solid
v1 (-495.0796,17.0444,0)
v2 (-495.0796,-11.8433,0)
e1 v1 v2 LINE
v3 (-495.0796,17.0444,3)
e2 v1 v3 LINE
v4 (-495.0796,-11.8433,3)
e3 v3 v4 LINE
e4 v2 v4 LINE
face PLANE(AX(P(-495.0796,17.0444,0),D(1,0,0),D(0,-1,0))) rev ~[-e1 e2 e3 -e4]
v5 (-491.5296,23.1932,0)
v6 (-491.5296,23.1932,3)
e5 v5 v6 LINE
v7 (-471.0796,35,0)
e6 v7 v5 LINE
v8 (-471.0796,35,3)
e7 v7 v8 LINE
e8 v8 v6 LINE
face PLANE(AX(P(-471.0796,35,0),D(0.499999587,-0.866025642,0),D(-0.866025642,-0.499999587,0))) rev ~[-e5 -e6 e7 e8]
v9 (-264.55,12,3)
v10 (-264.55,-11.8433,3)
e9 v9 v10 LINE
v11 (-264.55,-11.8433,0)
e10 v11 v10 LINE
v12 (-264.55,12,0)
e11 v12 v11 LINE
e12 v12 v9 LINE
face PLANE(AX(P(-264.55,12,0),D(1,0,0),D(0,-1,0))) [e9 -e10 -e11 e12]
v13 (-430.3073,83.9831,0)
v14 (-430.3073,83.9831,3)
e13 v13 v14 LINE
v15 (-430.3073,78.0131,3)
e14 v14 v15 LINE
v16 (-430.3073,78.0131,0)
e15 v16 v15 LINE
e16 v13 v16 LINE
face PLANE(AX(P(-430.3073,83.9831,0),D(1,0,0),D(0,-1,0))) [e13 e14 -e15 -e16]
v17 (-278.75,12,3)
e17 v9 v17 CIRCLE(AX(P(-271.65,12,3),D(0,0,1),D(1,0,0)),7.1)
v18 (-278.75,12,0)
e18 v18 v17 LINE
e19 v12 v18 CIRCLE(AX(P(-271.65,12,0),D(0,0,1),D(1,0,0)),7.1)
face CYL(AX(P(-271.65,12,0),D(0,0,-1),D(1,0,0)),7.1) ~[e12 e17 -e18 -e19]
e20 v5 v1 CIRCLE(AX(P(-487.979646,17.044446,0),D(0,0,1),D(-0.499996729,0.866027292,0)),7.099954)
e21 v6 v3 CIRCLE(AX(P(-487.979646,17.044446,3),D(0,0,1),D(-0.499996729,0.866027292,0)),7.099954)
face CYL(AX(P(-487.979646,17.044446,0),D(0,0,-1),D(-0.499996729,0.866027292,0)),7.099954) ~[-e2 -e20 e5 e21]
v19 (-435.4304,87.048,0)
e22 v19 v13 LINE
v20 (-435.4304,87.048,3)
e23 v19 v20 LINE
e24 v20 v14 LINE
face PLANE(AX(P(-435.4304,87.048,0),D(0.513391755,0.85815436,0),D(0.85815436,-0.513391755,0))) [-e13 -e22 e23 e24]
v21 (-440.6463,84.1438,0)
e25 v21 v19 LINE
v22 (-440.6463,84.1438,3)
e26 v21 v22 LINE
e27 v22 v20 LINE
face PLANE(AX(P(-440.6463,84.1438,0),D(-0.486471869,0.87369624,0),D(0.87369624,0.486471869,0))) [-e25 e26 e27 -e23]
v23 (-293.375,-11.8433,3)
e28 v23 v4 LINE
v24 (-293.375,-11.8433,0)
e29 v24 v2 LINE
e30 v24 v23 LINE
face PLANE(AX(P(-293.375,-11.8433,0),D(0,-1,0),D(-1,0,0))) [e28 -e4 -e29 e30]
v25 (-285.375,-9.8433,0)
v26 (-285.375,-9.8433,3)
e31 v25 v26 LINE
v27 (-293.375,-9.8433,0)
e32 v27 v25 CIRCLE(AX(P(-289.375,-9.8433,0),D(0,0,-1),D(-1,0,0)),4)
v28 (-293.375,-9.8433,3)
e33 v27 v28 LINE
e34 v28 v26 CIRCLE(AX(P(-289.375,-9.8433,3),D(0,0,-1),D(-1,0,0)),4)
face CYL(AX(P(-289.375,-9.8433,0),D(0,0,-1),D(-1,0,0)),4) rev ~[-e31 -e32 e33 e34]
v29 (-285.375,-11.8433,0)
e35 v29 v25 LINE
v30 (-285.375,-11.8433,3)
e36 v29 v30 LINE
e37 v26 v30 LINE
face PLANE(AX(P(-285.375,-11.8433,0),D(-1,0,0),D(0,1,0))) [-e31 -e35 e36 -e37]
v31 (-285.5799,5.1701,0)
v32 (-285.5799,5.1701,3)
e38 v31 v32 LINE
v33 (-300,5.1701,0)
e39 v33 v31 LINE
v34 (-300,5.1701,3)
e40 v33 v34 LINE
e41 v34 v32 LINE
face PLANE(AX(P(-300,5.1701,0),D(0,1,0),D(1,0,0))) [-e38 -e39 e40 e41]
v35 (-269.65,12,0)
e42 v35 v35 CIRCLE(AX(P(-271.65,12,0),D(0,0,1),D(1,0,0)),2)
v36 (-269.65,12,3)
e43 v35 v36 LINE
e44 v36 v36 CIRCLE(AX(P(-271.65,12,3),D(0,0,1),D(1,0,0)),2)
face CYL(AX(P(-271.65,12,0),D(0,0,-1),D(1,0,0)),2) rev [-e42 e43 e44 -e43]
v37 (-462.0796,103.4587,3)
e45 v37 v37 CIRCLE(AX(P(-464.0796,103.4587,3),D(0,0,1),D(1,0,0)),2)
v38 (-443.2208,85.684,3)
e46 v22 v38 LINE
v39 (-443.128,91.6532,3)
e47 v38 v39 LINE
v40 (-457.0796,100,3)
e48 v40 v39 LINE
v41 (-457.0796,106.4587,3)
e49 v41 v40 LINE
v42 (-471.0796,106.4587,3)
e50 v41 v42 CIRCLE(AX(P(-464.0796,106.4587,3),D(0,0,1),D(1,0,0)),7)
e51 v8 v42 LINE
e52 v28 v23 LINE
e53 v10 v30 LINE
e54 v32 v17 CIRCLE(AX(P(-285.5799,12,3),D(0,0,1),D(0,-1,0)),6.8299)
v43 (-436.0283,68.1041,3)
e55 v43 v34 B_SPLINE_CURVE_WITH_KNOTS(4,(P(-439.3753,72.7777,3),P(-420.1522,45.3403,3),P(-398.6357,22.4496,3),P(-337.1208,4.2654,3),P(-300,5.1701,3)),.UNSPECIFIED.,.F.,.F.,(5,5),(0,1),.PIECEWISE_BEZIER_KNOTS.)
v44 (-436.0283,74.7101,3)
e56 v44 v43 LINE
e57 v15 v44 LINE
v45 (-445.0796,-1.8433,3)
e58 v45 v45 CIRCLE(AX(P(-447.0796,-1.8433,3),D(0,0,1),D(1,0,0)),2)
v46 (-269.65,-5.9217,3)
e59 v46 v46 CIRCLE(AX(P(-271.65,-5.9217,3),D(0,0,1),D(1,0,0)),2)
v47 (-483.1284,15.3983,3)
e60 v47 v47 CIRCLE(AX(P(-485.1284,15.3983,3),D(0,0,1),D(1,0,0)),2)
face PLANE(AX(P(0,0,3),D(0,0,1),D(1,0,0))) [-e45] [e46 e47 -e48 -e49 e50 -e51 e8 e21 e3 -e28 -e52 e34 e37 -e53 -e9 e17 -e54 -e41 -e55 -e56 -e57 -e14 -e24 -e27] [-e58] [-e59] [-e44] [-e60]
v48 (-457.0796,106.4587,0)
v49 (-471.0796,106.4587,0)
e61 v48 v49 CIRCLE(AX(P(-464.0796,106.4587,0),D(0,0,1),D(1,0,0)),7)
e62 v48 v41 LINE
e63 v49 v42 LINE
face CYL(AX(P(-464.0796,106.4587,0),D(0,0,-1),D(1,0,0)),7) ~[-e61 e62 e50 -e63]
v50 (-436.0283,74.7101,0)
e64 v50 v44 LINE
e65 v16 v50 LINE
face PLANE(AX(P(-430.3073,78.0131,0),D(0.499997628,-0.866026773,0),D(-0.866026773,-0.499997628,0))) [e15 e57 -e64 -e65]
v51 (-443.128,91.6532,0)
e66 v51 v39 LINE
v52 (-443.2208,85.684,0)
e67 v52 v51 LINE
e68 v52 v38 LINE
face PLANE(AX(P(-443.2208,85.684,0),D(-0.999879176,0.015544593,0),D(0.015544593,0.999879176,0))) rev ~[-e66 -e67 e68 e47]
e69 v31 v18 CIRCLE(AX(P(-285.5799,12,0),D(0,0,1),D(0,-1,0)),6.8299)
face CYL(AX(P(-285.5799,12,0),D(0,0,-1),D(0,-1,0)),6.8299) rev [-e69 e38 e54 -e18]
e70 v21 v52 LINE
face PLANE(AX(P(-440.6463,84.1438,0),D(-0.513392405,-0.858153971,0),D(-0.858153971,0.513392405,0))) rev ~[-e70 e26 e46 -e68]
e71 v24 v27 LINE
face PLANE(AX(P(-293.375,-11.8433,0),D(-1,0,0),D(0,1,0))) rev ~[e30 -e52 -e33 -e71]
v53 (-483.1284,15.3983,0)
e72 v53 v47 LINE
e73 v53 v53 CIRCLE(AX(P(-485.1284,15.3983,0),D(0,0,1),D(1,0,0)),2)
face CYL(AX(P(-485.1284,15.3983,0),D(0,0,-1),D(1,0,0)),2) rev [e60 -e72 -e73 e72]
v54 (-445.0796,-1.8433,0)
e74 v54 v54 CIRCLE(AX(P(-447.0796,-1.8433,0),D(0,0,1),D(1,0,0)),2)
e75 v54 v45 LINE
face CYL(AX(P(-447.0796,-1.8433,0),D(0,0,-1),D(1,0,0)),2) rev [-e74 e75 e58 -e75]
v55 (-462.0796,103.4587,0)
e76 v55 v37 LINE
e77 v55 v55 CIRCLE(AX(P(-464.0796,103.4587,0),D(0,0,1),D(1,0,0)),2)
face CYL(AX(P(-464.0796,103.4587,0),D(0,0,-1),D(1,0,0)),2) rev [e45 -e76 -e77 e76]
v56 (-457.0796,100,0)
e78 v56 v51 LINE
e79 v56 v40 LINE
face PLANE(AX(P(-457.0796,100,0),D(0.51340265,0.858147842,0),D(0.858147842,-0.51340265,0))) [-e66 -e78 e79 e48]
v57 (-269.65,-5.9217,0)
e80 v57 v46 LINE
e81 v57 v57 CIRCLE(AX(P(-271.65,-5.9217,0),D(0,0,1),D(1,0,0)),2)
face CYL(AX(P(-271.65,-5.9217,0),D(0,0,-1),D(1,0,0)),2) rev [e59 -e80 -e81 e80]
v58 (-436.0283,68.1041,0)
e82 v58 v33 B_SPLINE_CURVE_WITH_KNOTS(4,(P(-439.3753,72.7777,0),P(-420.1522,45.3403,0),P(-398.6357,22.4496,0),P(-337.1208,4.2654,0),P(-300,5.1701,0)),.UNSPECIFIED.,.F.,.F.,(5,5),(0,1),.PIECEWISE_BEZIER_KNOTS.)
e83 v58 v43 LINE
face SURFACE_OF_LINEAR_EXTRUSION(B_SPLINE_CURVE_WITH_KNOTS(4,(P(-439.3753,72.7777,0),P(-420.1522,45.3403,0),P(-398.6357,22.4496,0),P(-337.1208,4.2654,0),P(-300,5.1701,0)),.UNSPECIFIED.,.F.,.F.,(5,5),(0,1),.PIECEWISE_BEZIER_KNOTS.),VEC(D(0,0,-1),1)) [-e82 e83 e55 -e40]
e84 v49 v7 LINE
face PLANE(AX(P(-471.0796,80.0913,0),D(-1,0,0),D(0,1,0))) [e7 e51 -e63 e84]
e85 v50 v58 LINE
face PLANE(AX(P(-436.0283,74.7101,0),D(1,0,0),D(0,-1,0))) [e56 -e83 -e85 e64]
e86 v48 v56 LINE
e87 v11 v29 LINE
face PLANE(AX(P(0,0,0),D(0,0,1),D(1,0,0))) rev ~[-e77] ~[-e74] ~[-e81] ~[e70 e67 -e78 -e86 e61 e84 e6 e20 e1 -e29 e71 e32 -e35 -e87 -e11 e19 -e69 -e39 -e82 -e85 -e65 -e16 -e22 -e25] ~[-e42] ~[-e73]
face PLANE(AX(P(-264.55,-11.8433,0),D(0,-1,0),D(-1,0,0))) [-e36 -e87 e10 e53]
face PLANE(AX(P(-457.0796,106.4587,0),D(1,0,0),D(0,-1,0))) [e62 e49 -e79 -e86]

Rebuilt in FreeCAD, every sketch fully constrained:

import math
import FreeCAD as App
import Part
import Sketcher

V = App.Vector
Q = App.Units.Quantity

doc = App.newDocument("Part")
body = doc.addObject("PartDesign::Body", "Body")

# Sketch on XY plane
sketch1 = body.newObject("Sketcher::SketchObject", "Sketch")
sketch1.AttachmentSupport = (doc.getObject("XY_Plane"), [""])
sketch1.MapMode = "FlatFace"
sketch1.addGeometry([
    Part.LineSegment(V(-471.0796, 106.4587, 0), V(-471.0796, 35, 0)),  # 0
    Part.LineSegment(V(-471.0796, 35, 0), V(-491.5296, 23.1932, 0)),  # 1
    Part.ArcOfCircle(Part.Circle(V(-487.9796, 17.0444, 0), V(0, 0, 1), 7.100017), math.radians(119.999921), math.radians(180)),  # 2
    Part.LineSegment(V(-495.0796, 17.0444, 0), V(-495.0796, -11.8433, 0)),  # 3
    Part.LineSegment(V(-495.0796, -11.8433, 0), V(-264.55, -11.8433, 0)),  # 4
    Part.LineSegment(V(-264.55, -11.8433, 0), V(-264.55, 12, 0)),  # 5
    Part.ArcOfCircle(Part.Circle(V(-271.65, 12, 0), V(0, 0, 1), 7.1), math.radians(0), math.radians(180)),  # 6
    Part.ArcOfCircle(Part.Circle(V(-285.5799, 12, 0), V(0, 0, 1), 6.8299), math.radians(-90), math.radians(0)),  # 7
    Part.LineSegment(V(-285.5799, 5.1701, 0), V(-300, 5.1701, 0)),  # 8
    Part.BSplineCurve([V(-436.028259, 68.10413, 0), V(-417.156436, 42.41159, 0), V(-393.385031, 20.919477, 0), V(-335.52292, 4.304343, 0), V(-300, 5.1701, 0)], [5, 5], [0.043045418, 1], False, 4, [1, 1, 1, 1, 1], False),  # 9
    Part.LineSegment(V(-436.0283, 68.1041, 0), V(-436.0283, 74.7101, 0)),  # 10
    Part.LineSegment(V(-436.0283, 74.7101, 0), V(-430.3073, 78.0131, 0)),  # 11
    Part.LineSegment(V(-430.3073, 78.0131, 0), V(-430.3073, 83.9831, 0)),  # 12
    Part.LineSegment(V(-430.3073, 83.9831, 0), V(-435.4304, 87.048, 0)),  # 13
    Part.LineSegment(V(-435.4304, 87.048, 0), V(-440.6463, 84.1438, 0)),  # 14
    Part.LineSegment(V(-440.6463, 84.1438, 0), V(-443.2208, 85.684, 0)),  # 15
    Part.LineSegment(V(-443.2208, 85.684, 0), V(-443.128, 91.6532, 0)),  # 16
    Part.LineSegment(V(-443.128, 91.6532, 0), V(-457.0796, 100, 0)),  # 17
    Part.LineSegment(V(-457.0796, 100, 0), V(-457.0796, 106.4587, 0)),  # 18
    Part.ArcOfCircle(Part.Circle(V(-464.0796, 106.4587, 0), V(0, 0, 1), 7), math.radians(0), math.radians(180)),  # 19
    Part.Circle(V(-447.0796, -1.8433, 0), V(0, 0, 1), 2),  # 20
    Part.Circle(V(-485.1284, 15.3983, 0), V(0, 0, 1), 2),  # 21
    Part.Circle(V(-464.0796, 103.4587, 0), V(0, 0, 1), 2),  # 22
    Part.Circle(V(-271.65, -5.9217, 0), V(0, 0, 1), 2),  # 23
    Part.Circle(V(-271.65, 12, 0), V(0, 0, 1), 2),  # 24
], False)
sketch1.addConstraint([
    Sketcher.Constraint("Block", 9),
    Sketcher.Constraint("Coincident", 0, 2, 1, 1),
    Sketcher.Constraint("Tangent", 1, 2, 2, 1),
    Sketcher.Constraint("Tangent", 2, 2, 3, 1),
    Sketcher.Constraint("Coincident", 3, 2, 4, 1),
    Sketcher.Constraint("Coincident", 4, 2, 5, 1),
    Sketcher.Constraint("Tangent", 5, 2, 6, 1),
    Sketcher.Constraint("Tangent", 6, 2, 7, 2),
    Sketcher.Constraint("Tangent", 7, 1, 8, 1),
    Sketcher.Constraint("Coincident", 8, 2, 9, 2),
    Sketcher.Constraint("Coincident", 9, 1, 10, 1),
    Sketcher.Constraint("Coincident", 10, 2, 11, 1),
    Sketcher.Constraint("Coincident", 11, 2, 12, 1),
    Sketcher.Constraint("Coincident", 12, 2, 13, 1),
    Sketcher.Constraint("Coincident", 13, 2, 14, 1),
    Sketcher.Constraint("Coincident", 14, 2, 15, 1),
    Sketcher.Constraint("Coincident", 15, 2, 16, 1),
    Sketcher.Constraint("Coincident", 16, 2, 17, 1),
    Sketcher.Constraint("Coincident", 17, 2, 18, 1),
    Sketcher.Constraint("Tangent", 18, 2, 19, 1),
    Sketcher.Constraint("Tangent", 19, 2, 0, 1),
    Sketcher.Constraint("Vertical", 0),
    Sketcher.Constraint("Vertical", 3),
    Sketcher.Constraint("Horizontal", 4),
    Sketcher.Constraint("Vertical", 5),
    Sketcher.Constraint("Horizontal", 8),
    Sketcher.Constraint("Vertical", 10),
    Sketcher.Constraint("Vertical", 12),
    Sketcher.Constraint("Vertical", 18),
    Sketcher.Constraint("Coincident", 24, 3, 6, 3),
    Sketcher.Constraint("Equal", 2, 6),
    Sketcher.Constraint("Equal", 20, 21),
    Sketcher.Constraint("Equal", 21, 22),
    Sketcher.Constraint("Equal", 22, 23),
    Sketcher.Constraint("Equal", 23, 24),
    Sketcher.Constraint("Parallel", 1, 11),
    Sketcher.Constraint("Parallel", 13, 15),
    Sketcher.Constraint("Parallel", 15, 17),
    Sketcher.Constraint("Horizontal", 6, 3, 7, 3),
    Sketcher.Constraint("Vertical", 19, 3, 22, 3),
    Sketcher.Constraint("Vertical", 6, 3, 23, 3),
    Sketcher.Constraint("Equal", 13, 14),
    Sketcher.Constraint("Equal", 14, 16),
    Sketcher.Constraint("Diameter", 20, 4.0),
    Sketcher.Constraint("Radius", 19, 7.0),
    Sketcher.Constraint("Radius", 2, 7.1),
    Sketcher.Constraint("Angle", 11, Q("29.9998 deg")),
    Sketcher.Constraint("Distance", 15, 3.0),
    Sketcher.Constraint("DistanceY", -1, 1, 6, 3, 12.0),
    Sketcher.Constraint("DistanceY", -1, 1, 0, 2, 35.0),
    Sketcher.Constraint("DistanceY", -1, 1, 17, 2, 100.0),
    Sketcher.Constraint("DistanceY", 22, 3, 19, 3, 3.0),
    Sketcher.Constraint("DistanceX", 0, 2, 20, 3, 24.0),
    Sketcher.Constraint("DistanceX", 2, 2, 0, 2, 24.0),
    Sketcher.Constraint("DistanceY", 3, 2, 20, 3, 10.0),
    Sketcher.Constraint("DistanceX", 8, 2, 6, 2, 21.25),
    Sketcher.Constraint("DistanceY", 12, 1, 12, 2, 5.97),
    Sketcher.Constraint("Angle", 13, Q("149.11 deg")),
    Sketcher.Constraint("Angle", 14, Q("-150.891 deg")),
    Sketcher.Constraint("Angle", 16, Q("89.1093 deg")),
    Sketcher.Constraint("DistanceX", 21, 3, 10, 2, 49.1),
    Sketcher.Constraint("DistanceX", 16, 2, 10, 2, 7.0997),
    Sketcher.Constraint("Distance", 13, 5.97),
    Sketcher.Constraint("DistanceY", 10, 1, 10, 2, 6.606),
    Sketcher.Constraint("DistanceY", 23, 3, 21, 3, 21.32),
    Sketcher.Constraint("DistanceY", 0, 2, 0, 1, 71.4587),
    Sketcher.Constraint("DistanceY", 3, 2, 3, 1, 28.8877),
    Sketcher.Constraint("DistanceY", 21, 3, 2, 3, 1.646),
])
pad1 = body.newObject("PartDesign::Pad", "Pad")
pad1.Profile = sketch1
pad1.Length = 3

# Sketch on XY plane
sketch2 = body.newObject("Sketcher::SketchObject", "Sketch001")
sketch2.AttachmentSupport = (doc.getObject("XY_Plane"), [""])
sketch2.MapMode = "FlatFace"
sketch2.addGeometry([
    Part.LineSegment(V(-285.4, -9.8, 0), V(-285.4, -11.8, 0)),
    Part.LineSegment(V(-285.4, -11.8, 0), V(-293.4, -11.8, 0)),
    Part.LineSegment(V(-293.4, -11.8, 0), V(-293.4, -9.8, 0)),
    Part.ArcOfCircle(Part.Circle(V(-289.4, -9.8, 0), V(0, 0, 1), 4), math.radians(0), math.radians(180)),
], False)
sketch2.addConstraint([
    Sketcher.Constraint("Coincident", 0, 2, 1, 1),
    Sketcher.Constraint("Coincident", 1, 2, 2, 1),
    Sketcher.Constraint("Tangent", 2, 2, 3, 2),
    Sketcher.Constraint("Tangent", 3, 1, 0, 1),
    Sketcher.Constraint("Vertical", 0),
    Sketcher.Constraint("Horizontal", 1),
    Sketcher.Constraint("Vertical", 2),
    Sketcher.Constraint("Radius", 3, 4.0),
    Sketcher.Constraint("DistanceY", 0, 2, 0, 1, 2.0),
    Sketcher.Constraint("DistanceX", 3, 3, -1, 1, 289.375),
    Sketcher.Constraint("DistanceY", 3, 3, -1, 1, 9.8433),
])
pocket1 = body.newObject("PartDesign::Pocket", "Pocket")
pocket1.Profile = sketch2
pocket1.Type = "ThroughAll"
pocket1.Reversed = True

doc.recompute()
